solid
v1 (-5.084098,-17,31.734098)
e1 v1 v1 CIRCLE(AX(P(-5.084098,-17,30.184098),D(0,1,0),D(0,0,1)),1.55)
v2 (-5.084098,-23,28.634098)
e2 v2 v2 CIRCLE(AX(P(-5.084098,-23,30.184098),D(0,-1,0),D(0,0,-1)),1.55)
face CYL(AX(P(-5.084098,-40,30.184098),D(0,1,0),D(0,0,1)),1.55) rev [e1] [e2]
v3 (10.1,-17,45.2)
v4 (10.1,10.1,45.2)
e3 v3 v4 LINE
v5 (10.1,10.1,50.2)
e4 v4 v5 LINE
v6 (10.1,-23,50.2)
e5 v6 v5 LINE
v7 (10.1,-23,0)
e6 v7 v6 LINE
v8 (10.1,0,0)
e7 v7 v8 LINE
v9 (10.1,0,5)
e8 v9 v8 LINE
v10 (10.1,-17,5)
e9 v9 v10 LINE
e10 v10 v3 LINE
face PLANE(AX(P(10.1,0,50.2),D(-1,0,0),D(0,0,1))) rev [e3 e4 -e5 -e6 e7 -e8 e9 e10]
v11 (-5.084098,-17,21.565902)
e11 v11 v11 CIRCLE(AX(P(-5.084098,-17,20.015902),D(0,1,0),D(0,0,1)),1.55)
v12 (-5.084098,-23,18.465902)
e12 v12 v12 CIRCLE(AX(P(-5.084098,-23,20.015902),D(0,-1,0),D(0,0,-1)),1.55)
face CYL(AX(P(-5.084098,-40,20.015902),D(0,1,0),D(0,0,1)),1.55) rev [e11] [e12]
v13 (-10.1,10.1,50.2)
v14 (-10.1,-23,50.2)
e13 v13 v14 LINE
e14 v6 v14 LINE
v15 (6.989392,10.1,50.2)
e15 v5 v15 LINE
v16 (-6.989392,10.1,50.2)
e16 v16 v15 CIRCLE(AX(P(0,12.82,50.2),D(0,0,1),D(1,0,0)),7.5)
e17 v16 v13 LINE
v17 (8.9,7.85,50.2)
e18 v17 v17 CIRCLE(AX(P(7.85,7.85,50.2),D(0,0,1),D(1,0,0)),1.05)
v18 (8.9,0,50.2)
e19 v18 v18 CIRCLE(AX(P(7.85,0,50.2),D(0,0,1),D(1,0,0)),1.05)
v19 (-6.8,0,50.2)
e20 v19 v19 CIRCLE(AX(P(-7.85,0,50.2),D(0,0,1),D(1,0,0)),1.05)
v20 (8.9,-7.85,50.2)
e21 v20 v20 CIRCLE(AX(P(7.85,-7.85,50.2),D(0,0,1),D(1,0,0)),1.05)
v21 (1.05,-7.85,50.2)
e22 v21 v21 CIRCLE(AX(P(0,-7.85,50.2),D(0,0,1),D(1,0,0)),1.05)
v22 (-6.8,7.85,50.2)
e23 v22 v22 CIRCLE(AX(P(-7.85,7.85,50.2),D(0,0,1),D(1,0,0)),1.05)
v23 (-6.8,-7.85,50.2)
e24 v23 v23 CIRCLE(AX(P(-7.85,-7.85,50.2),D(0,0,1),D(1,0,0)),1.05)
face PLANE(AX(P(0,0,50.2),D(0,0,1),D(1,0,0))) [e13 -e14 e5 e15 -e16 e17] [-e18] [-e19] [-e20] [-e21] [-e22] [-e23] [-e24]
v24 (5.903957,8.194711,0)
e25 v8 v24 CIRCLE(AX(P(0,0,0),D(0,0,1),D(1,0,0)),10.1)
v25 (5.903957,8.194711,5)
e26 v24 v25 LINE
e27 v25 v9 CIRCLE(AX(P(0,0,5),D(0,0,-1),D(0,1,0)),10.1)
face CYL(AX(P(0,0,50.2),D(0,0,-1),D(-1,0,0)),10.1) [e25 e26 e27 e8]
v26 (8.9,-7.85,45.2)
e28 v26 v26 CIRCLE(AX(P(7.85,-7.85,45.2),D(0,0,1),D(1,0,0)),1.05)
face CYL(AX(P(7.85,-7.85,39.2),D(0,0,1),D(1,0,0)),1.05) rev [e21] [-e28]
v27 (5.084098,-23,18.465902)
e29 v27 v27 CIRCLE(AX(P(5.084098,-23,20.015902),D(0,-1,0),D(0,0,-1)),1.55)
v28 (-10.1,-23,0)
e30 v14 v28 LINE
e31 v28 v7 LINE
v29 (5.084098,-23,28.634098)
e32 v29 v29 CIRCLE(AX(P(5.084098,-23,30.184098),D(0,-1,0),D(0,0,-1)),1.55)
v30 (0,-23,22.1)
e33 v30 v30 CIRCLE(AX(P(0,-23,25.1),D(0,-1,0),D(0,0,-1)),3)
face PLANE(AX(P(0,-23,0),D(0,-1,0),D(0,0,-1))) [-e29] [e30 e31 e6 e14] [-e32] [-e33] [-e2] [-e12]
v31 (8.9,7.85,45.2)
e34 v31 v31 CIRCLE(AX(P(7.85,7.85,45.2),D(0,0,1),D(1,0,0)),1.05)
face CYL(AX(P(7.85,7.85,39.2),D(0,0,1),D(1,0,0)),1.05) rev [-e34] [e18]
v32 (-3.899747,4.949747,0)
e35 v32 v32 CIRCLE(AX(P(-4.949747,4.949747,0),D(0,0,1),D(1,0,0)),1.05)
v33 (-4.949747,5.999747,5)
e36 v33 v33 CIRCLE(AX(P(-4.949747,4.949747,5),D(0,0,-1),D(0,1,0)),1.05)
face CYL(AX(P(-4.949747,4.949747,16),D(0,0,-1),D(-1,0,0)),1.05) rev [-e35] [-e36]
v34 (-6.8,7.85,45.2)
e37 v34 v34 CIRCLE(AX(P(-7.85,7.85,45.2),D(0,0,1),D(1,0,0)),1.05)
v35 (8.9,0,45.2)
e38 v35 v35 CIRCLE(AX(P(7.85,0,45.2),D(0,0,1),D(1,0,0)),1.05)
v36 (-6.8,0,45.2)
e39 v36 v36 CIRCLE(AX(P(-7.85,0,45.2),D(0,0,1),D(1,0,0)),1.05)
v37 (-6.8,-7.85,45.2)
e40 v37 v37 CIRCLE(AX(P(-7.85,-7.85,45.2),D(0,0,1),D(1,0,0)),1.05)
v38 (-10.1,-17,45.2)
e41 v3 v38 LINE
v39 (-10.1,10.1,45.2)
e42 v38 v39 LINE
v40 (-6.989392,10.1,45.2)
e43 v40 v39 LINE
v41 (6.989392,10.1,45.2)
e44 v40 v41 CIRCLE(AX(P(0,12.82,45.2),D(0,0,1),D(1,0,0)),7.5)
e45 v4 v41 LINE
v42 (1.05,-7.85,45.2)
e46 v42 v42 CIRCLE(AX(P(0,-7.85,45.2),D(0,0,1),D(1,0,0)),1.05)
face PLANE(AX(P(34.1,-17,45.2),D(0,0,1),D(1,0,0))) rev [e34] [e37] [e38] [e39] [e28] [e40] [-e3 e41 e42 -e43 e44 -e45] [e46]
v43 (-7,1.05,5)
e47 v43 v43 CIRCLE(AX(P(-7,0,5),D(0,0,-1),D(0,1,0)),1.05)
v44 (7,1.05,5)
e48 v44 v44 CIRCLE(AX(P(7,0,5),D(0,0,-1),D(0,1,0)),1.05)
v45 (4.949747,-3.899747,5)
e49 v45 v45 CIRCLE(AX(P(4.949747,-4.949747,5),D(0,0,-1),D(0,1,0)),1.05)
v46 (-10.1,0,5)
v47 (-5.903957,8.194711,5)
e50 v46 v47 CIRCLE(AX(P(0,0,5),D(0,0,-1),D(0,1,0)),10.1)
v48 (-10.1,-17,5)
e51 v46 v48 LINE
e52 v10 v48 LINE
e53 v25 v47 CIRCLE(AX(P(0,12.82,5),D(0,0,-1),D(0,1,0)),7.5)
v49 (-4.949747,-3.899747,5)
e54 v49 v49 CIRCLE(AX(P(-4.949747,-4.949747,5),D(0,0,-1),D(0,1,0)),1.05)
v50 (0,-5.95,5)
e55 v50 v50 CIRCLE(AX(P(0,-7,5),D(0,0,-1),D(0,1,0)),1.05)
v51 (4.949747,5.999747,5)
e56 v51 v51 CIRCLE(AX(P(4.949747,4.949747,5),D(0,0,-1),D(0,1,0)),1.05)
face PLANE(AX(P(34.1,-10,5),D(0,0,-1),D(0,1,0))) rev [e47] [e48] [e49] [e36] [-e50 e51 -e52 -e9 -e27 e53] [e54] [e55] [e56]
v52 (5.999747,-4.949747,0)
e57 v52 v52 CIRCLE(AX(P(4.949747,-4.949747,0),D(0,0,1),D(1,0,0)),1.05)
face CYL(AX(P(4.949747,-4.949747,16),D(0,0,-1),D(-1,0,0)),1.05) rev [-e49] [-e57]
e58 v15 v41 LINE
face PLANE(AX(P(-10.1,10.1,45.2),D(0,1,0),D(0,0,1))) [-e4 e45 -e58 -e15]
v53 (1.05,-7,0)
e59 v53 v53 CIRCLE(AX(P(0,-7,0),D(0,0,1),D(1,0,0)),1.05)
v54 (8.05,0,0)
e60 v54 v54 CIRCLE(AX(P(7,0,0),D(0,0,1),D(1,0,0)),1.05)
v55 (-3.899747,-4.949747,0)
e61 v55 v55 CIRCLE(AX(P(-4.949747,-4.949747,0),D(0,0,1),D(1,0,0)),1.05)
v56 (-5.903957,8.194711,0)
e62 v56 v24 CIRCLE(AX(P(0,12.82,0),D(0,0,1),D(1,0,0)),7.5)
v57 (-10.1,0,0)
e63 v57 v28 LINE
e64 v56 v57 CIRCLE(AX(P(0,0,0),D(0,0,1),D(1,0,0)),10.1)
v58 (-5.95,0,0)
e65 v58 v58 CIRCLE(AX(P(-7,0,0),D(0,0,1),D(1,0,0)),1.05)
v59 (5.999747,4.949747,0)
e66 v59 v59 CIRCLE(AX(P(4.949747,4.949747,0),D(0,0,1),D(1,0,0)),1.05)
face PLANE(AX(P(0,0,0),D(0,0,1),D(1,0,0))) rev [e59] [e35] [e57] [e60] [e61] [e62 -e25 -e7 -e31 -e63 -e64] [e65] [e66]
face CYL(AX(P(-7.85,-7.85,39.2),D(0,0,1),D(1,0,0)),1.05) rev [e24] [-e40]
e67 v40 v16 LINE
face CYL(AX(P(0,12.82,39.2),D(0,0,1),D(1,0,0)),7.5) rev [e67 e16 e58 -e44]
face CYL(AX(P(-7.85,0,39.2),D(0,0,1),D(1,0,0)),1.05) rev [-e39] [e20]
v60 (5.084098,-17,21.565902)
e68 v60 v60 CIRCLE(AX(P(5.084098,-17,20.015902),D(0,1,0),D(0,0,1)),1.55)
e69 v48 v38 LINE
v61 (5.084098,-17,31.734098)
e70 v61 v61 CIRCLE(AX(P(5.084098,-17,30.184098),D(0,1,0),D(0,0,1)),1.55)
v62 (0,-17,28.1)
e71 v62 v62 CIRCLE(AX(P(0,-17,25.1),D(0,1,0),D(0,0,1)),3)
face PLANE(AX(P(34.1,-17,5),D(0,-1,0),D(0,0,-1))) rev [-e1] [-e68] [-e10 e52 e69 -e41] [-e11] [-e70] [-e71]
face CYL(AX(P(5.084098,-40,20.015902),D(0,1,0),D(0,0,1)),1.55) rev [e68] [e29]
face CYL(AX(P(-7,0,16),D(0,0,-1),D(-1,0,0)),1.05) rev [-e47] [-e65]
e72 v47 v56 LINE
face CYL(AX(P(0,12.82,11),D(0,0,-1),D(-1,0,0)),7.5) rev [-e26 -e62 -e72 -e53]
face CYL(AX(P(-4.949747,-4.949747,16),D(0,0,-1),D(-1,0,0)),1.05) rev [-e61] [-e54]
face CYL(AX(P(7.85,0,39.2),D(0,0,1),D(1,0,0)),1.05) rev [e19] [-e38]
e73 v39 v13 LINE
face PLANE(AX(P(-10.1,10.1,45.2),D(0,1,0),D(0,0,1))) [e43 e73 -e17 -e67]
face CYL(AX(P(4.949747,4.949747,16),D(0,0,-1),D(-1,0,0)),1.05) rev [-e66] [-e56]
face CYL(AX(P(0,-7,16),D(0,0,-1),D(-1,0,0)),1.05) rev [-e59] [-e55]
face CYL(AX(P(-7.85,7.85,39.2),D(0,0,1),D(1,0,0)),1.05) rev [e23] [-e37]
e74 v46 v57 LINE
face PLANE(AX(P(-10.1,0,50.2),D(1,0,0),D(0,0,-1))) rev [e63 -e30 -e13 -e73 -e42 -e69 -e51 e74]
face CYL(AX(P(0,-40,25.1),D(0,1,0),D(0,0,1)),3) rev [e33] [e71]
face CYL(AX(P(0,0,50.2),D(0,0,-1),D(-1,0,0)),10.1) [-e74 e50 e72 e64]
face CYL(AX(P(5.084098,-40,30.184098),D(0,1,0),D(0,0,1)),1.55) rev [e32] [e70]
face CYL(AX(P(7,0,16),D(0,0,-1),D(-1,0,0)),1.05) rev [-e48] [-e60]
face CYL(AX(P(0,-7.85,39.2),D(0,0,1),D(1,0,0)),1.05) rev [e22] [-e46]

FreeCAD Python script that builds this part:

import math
import FreeCAD as App
import Part
import Sketcher

V = App.Vector


def add_polygon(sketch, points):
    """Adds a closed chain of lines whose ends are joined by coincident constraints."""
    first, n = sketch.GeometryCount, len(points)
    for a, b in zip(points, points[1:] + points[:1]):
        sketch.addGeometry(Part.LineSegment(App.Vector(*a, 0), App.Vector(*b, 0)), False)
    for i in range(n):
        sketch.addConstraint(Sketcher.Constraint("Coincident", first + i, 2, first + (i + 1) % n, 1))

doc = App.newDocument("Part")
body = doc.addObject("PartDesign::Body", "Body")

# Sketch on XY plane
sketch1 = body.newObject("Sketcher::SketchObject", "Sketch")
sketch1.AttachmentSupport = (doc.getObject("XY_Plane"), [""])
sketch1.MapMode = "FlatFace"
sketch1.addGeometry(Part.LineSegment(V(-10, 0, 0), V(-10, -20, 0)), False)
sketch1.addGeometry(Part.LineSegment(V(-10, -20, 0), V(10, -20, 0)), False)
sketch1.addGeometry(Part.LineSegment(V(10, -20, 0), V(10, 0, 0)), False)
sketch1.addGeometry(Part.ArcOfCircle(Part.Circle(V(0, 0, 0), V(0, 0, 1), 10), math.radians(0), math.radians(180)), False)
sketch1.addConstraint(Sketcher.Constraint("Coincident", 0, 2, 1, 1))
sketch1.addConstraint(Sketcher.Constraint("Coincident", 1, 2, 2, 1))
sketch1.addConstraint(Sketcher.Constraint("Tangent", 2, 2, 3, 1))
sketch1.addConstraint(Sketcher.Constraint("Tangent", 3, 2, 0, 1))
sketch1.addConstraint(Sketcher.Constraint("Vertical", 0))
sketch1.addConstraint(Sketcher.Constraint("Horizontal", 1))
sketch1.addConstraint(Sketcher.Constraint("Vertical", 2))
sketch1.addConstraint(Sketcher.Constraint("Coincident", 3, 3, -1, 1))
sketch1.addConstraint(Sketcher.Constraint("Radius", 3, 10.1))
sketch1.addConstraint(Sketcher.Constraint("DistanceY", 0, 2, 0, 1, 20.0))
pad1 = body.newObject("PartDesign::Pad", "Pad")
pad1.Profile = sketch1
pad1.Length = 50.2

# Sketch on YZ plane
sketch2 = body.newObject("Sketcher::SketchObject", "Sketch001")
sketch2.AttachmentSupport = (doc.getObject("YZ_Plane"), [""])
sketch2.MapMode = "FlatFace"
sketch2.AttachmentOffset = App.Placement(V(0, 0, -10.1), App.Rotation())
add_polygon(sketch2, [(-17, 5), (-17, 45), (12, 45), (12, 5)])  # lines 0-3
sketch2.addConstraint(Sketcher.Constraint("Vertical", 0))
sketch2.addConstraint(Sketcher.Constraint("Horizontal", 1))
sketch2.addConstraint(Sketcher.Constraint("Vertical", 2))
sketch2.addConstraint(Sketcher.Constraint("Horizontal", 3))
sketch2.addConstraint(Sketcher.Constraint("DistanceY", 0, 1, 0, 2, 40.2))
sketch2.addConstraint(Sketcher.Constraint("DistanceX", 0, 2, -1, 1, 17.0))
sketch2.addConstraint(Sketcher.Constraint("DistanceY", -1, 1, 2, 2, 5.0))
sketch2.addConstraint(Sketcher.Constraint("DistanceX", 1, 1, 1, 2, 28.866817))
pocket1 = body.newObject("PartDesign::Pocket", "Pocket")
pocket1.Profile = sketch2
pocket1.Length = 44.2
pocket1.Reversed = True

# Sketch on XY plane
sketch3 = body.newObject("Sketcher::SketchObject", "Sketch002")
sketch3.AttachmentSupport = (doc.getObject("XY_Plane"), [""])
sketch3.MapMode = "FlatFace"
sketch3.AttachmentOffset = App.Placement(V(0, 0, 50.2), App.Rotation())
add_polygon(sketch3, [(-10, 10), (-10, 0), (10, 0), (10, 10)])  # lines 0-3
sketch3.addConstraint(Sketcher.Constraint("Vertical", 0))
sketch3.addConstraint(Sketcher.Constraint("Horizontal", 1))
sketch3.addConstraint(Sketcher.Constraint("Vertical", 2))
sketch3.addConstraint(Sketcher.Constraint("Horizontal", 3))
sketch3.addConstraint(Sketcher.Constraint("Symmetric", 0, 2, 1, 2, -1, 1))
sketch3.addConstraint(Sketcher.Constraint("DistanceX", 1, 1, 1, 2, 20.2))
sketch3.addConstraint(Sketcher.Constraint("DistanceY", 0, 2, 0, 1, 10.1))
pad2 = body.newObject("PartDesign::Pad", "Pad001")
pad2.Profile = sketch3
pad2.Length = 5
pad2.Reversed = True

# Sketch on XY plane
sketch4 = body.newObject("Sketcher::SketchObject", "Sketch003")
sketch4.AttachmentSupport = (doc.getObject("XY_Plane"), [""])
sketch4.MapMode = "FlatFace"
sketch4.AttachmentOffset = App.Placement(V(0, 0, 50.2), App.Rotation())
sketch4.addGeometry(Part.Circle(V(-7.8, 7.8, 0), V(0, 0, 1), 1.1), False)
sketch4.addGeometry(Part.Circle(V(7.8, 7.8, 0), V(0, 0, 1), 1.1), False)
sketch4.addGeometry(Part.Circle(V(-7.8, -7.8, 0), V(0, 0, 1), 1.1), False)
sketch4.addGeometry(Part.Circle(V(7.8, -7.8, 0), V(0, 0, 1), 1.1), False)
sketch4.addGeometry(Part.Circle(V(0, 7.8, 0), V(0, 0, 1), 1.1), False)
sketch4.addGeometry(Part.Circle(V(0, -7.8, 0), V(0, 0, 1), 1.1), False)
sketch4.addGeometry(Part.Circle(V(-7.8, 0, 0), V(0, 0, 1), 1.1), False)
sketch4.addGeometry(Part.Circle(V(7.8, 0, 0), V(0, 0, 1), 1.1), False)
sketch4.addConstraint(Sketcher.Constraint("Equal", 0, 1))
sketch4.addConstraint(Sketcher.Constraint("Equal", 1, 2))
sketch4.addConstraint(Sketcher.Constraint("Equal", 2, 3))
sketch4.addConstraint(Sketcher.Constraint("Equal", 3, 4))
sketch4.addConstraint(Sketcher.Constraint("Equal", 4, 5))
sketch4.addConstraint(Sketcher.Constraint("Equal", 5, 6))
sketch4.addConstraint(Sketcher.Constraint("Equal", 6, 7))
sketch4.addConstraint(Sketcher.Constraint("Symmetric", 1, 3, 2, 3, -1, 1))
sketch4.addConstraint(Sketcher.Constraint("Symmetric", 0, 3, 3, 3, -1, 1))
sketch4.addConstraint(Sketcher.Constraint("Symmetric", 4, 3, 5, 3, -1, 1))
sketch4.addConstraint(Sketcher.Constraint("Symmetric", 6, 3, 7, 3, -1, 1))
sketch4.addConstraint(Sketcher.Constraint("Symmetric", 0, 3, 1, 3, -2))
sketch4.addConstraint(Sketcher.Constraint("PointOnObject", 4, 3, -2))
sketch4.addConstraint(Sketcher.Constraint("PointOnObject", 6, 3, -1))
sketch4.addConstraint(Sketcher.Constraint("Horizontal", 1, 3, 4, 3))
sketch4.addConstraint(Sketcher.Constraint("Vertical", 2, 3, 6, 3))
sketch4.addConstraint(Sketcher.Constraint("Diameter", 0, 2.1))
sketch4.addConstraint(Sketcher.Constraint("DistanceX", 0, 3, 1, 3, 15.7))
sketch4.addConstraint(Sketcher.Constraint("DistanceY", 2, 3, 0, 3, 15.7))
pocket2 = body.newObject("PartDesign::Pocket", "Pocket001")
pocket2.Profile = sketch4
pocket2.Length = 22
pocket2.Midplane = True

# Sketch on XY plane
sketch5 = body.newObject("Sketcher::SketchObject", "Sketch004")
sketch5.AttachmentSupport = (doc.getObject("XY_Plane"), [""])
sketch5.MapMode = "FlatFace"
sketch5.AttachmentOffset = App.Placement(V(0, 0, 50.2), App.Rotation())
sketch5.addGeometry(Part.Circle(V(0, 0, 0), V(0, 0, 1), 4), False)
sketch5.addGeometry(Part.Circle(V(0, 12.8, 0), V(0, 0, 1), 7.5), False)
sketch5.addConstraint(Sketcher.Constraint("Coincident", 0, 3, -1, 1))
sketch5.addConstraint(Sketcher.Constraint("PointOnObject", 1, 3, -2))
sketch5.addConstraint(Sketcher.Constraint("Diameter", 0, 8.0))
sketch5.addConstraint(Sketcher.Constraint("Diameter", 1, 15.0))
sketch5.addConstraint(Sketcher.Constraint("DistanceY", -1, 1, 1, 3, 12.82))
pocket3 = body.newObject("PartDesign::Pocket", "Pocket002")
pocket3.Profile = sketch5
pocket3.Length = 22
pocket3.Midplane = True

# Sketch on XY plane
sketch6 = body.newObject("Sketcher::SketchObject", "Sketch005")
sketch6.AttachmentSupport = (doc.getObject("XY_Plane"), [""])
sketch6.MapMode = "FlatFace"
sketch6.AttachmentOffset = App.Placement(V(0, 0, 50.2), App.Rotation())
sketch6.addGeometry(Part.Circle(V(0, 0, 0), V(0, 0, 1), 4), False)
sketch6.addConstraint(Sketcher.Constraint("Coincident", 0, 3, -1, 1))
sketch6.addConstraint(Sketcher.Constraint("Diameter", 0, 8.0))
pad3 = body.newObject("PartDesign::Pad", "Pad002")
pad3.Profile = sketch6
pad3.Length = 5
pad3.Reversed = True

# Sketch on XY plane
sketch7 = body.newObject("Sketcher::SketchObject", "Sketch006")
sketch7.AttachmentSupport = (doc.getObject("XY_Plane"), [""])
sketch7.MapMode = "FlatFace"
sketch7.addGeometry(Part.Circle(V(0, 0, 0), V(0, 0, 1), 4), False)
sketch7.addGeometry(Part.Circle(V(0, 7, 0), V(0, 0, 1), 1.1), False)
sketch7.addGeometry(Part.Circle(V(4.9, 4.9, 0), V(0, 0, 1), 1.1), False)
sketch7.addGeometry(Part.Circle(V(7, 0, 0), V(0, 0, 1), 1.1), False)
sketch7.addGeometry(Part.Circle(V(4.9, -4.9, 0), V(0, 0, 1), 1.1), False)
sketch7.addGeometry(Part.Circle(V(0, -7, 0), V(0, 0, 1), 1.1), False)
sketch7.addGeometry(Part.Circle(V(-4.9, -4.9, 0), V(0, 0, 1), 1.1), False)
sketch7.addGeometry(Part.Circle(V(-7, 0, 0), V(0, 0, 1), 1.1), False)
sketch7.addGeometry(Part.Circle(V(-4.9, 4.9, 0), V(0, 0, 1), 1.1), False)
sketch7.addConstraint(Sketcher.Constraint("Coincident", 0, 3, -1, 1))
sketch7.addConstraint(Sketcher.Constraint("Equal", 1, 2))
sketch7.addConstraint(Sketcher.Constraint("Equal", 2, 3))
sketch7.addConstraint(Sketcher.Constraint("Equal", 3, 4))
sketch7.addConstraint(Sketcher.Constraint("Equal", 4, 5))
sketch7.addConstraint(Sketcher.Constraint("Equal", 5, 6))
sketch7.addConstraint(Sketcher.Constraint("Equal", 6, 7))
sketch7.addConstraint(Sketcher.Constraint("Equal", 7, 8))
sketch7.addConstraint(Sketcher.Constraint("Symmetric", 1, 3, 5, 3, -1, 1))
sketch7.addConstraint(Sketcher.Constraint("Symmetric", 2, 3, 6, 3, -1, 1))
sketch7.addConstraint(Sketcher.Constraint("Symmetric", 3, 3, 7, 3, -1, 1))
sketch7.addConstraint(Sketcher.Constraint("Symmetric", 4, 3, 8, 3, -1, 1))
sketch7.addConstraint(Sketcher.Constraint("Symmetric", 4, 3, 6, 3, -2))
sketch7.addConstraint(Sketcher.Constraint("PointOnObject", 1, 3, -2))
sketch7.addConstraint(Sketcher.Constraint("PointOnObject", 3, 3, -1))
sketch7.addConstraint(Sketcher.Constraint("Diameter", 0, 8.0))
sketch7.addConstraint(Sketcher.Constraint("Diameter", 1, 2.1))
sketch7.addConstraint(Sketcher.Constraint("DistanceY", -1, 1, 1, 3, 7.0))
sketch7.addConstraint(Sketcher.Constraint("DistanceX", -1, 1, 3, 3, 7.0))
sketch7.addConstraint(Sketcher.Constraint("DistanceX", -1, 1, 2, 3, 4.949747))
sketch7.addConstraint(Sketcher.Constraint("DistanceY", -1, 1, 2, 3, 4.949747))
pocket4 = body.newObject("PartDesign::Pocket", "Pocket003")
pocket4.Profile = sketch7
pocket4.Length = 32
pocket4.Midplane = True

# Sketch on XY plane
sketch8 = body.newObject("Sketcher::SketchObject", "Sketch007")
sketch8.AttachmentSupport = (doc.getObject("XY_Plane"), [""])
sketch8.MapMode = "FlatFace"
sketch8.addGeometry(Part.Circle(V(0, 13, 0), V(0, 0, 1), 8), False)
sketch8.addConstraint(Sketcher.Constraint("PointOnObject", 0, 3, -2))
sketch8.addConstraint(Sketcher.Constraint("Diameter", 0, 15.0))
sketch8.addConstraint(Sketcher.Constraint("DistanceY", -1, 1, 0, 3, 12.82))
pocket5 = body.newObject("PartDesign::Pocket", "Pocket004")
pocket5.Profile = sketch8
pocket5.Length = 22
pocket5.Midplane = True

# Sketch on XY plane
sketch9 = body.newObject("Sketcher::SketchObject", "Sketch008")
sketch9.AttachmentSupport = (doc.getObject("XY_Plane"), [""])
sketch9.MapMode = "FlatFace"
sketch9.addGeometry(Part.Circle(V(0, 0, 0), V(0, 0, 1), 4), False)
sketch9.addConstraint(Sketcher.Constraint("Coincident", 0, 3, -1, 1))
sketch9.addConstraint(Sketcher.Constraint("Diameter", 0, 8.0))
pad4 = body.newObject("PartDesign::Pad", "Pad003")
pad4.Profile = sketch9
pad4.Length = 5

# Sketch on XZ plane
sketch10 = body.newObject("Sketcher::SketchObject", "Sketch009")
sketch10.AttachmentSupport = (doc.getObject("XZ_Plane"), [""])
sketch10.MapMode = "FlatFace"
sketch10.AttachmentOffset = App.Placement(V(0, 0, 20), App.Rotation())
add_polygon(sketch10, [(10, 0), (10, 50), (-10, 50), (-10, 0)])  # lines 0-3
sketch10.addConstraint(Sketcher.Constraint("Vertical", 0))
sketch10.addConstraint(Sketcher.Constraint("Horizontal", 1))
sketch10.addConstraint(Sketcher.Constraint("Vertical", 2))
sketch10.addConstraint(Sketcher.Constraint("Horizontal", 3))
sketch10.addConstraint(Sketcher.Constraint("Symmetric", 2, 2, 3, 2, -1, 1))
sketch10.addConstraint(Sketcher.Constraint("DistanceX", 1, 2, 1, 1, 20.2))
sketch10.addConstraint(Sketcher.Constraint("DistanceY", 0, 1, 0, 2, 50.2))
pad5 = body.newObject("PartDesign::Pad", "Pad004")
pad5.Profile = sketch10
pad5.Length = 3

# Sketch on XZ plane
sketch11 = body.newObject("Sketcher::SketchObject", "Sketch010")
sketch11.AttachmentSupport = (doc.getObject("XZ_Plane"), [""])
sketch11.MapMode = "FlatFace"
sketch11.AttachmentOffset = App.Placement(V(0, 0, 17), App.Rotation())
sketch11.addGeometry(Part.Circle(V(0, 25.1, 0), V(0, 0, 1), 3), False)
sketch11.addGeometry(Part.Circle(V(-5.1, 20, 0), V(0, 0, 1), 1.6), False)
sketch11.addGeometry(Part.Circle(V(5.1, 20, 0), V(0, 0, 1), 1.6), False)
sketch11.addGeometry(Part.Circle(V(5.1, 30.2, 0), V(0, 0, 1), 1.6), False)
sketch11.addGeometry(Part.Circle(V(-5.1, 30.2, 0), V(0, 0, 1), 1.6), False)
sketch11.addConstraint(Sketcher.Constraint("Equal", 1, 2))
sketch11.addConstraint(Sketcher.Constraint("Equal", 2, 3))
sketch11.addConstraint(Sketcher.Constraint("Equal", 3, 4))
sketch11.addConstraint(Sketcher.Constraint("Symmetric", 1, 3, 2, 3, -2))
sketch11.addConstraint(Sketcher.Constraint("Symmetric", 3, 3, 4, 3, -2))
sketch11.addConstraint(Sketcher.Constraint("PointOnObject", 0, 3, -2))
sketch11.addConstraint(Sketcher.Constraint("Vertical", 2, 3, 3, 3))
sketch11.addConstraint(Sketcher.Constraint("Diameter", 0, 6.0))
sketch11.addConstraint(Sketcher.Constraint("Diameter", 1, 3.1))
sketch11.addConstraint(Sketcher.Constraint("DistanceY", -1, 1, 0, 3, 25.1))
sketch11.addConstraint(Sketcher.Constraint("DistanceX", 1, 3, -1, 1, 5.084098))
sketch11.addConstraint(Sketcher.Constraint("DistanceY", -1, 1, 1, 3, 20.015902))
sketch11.addConstraint(Sketcher.Constraint("DistanceY", -1, 1, 3, 3, 30.184098))
pocket6 = body.newObject("PartDesign::Pocket", "Pocket005")
pocket6.Profile = sketch11
pocket6.Length = 23
pocket6.Reversed = True

doc.recompute()
